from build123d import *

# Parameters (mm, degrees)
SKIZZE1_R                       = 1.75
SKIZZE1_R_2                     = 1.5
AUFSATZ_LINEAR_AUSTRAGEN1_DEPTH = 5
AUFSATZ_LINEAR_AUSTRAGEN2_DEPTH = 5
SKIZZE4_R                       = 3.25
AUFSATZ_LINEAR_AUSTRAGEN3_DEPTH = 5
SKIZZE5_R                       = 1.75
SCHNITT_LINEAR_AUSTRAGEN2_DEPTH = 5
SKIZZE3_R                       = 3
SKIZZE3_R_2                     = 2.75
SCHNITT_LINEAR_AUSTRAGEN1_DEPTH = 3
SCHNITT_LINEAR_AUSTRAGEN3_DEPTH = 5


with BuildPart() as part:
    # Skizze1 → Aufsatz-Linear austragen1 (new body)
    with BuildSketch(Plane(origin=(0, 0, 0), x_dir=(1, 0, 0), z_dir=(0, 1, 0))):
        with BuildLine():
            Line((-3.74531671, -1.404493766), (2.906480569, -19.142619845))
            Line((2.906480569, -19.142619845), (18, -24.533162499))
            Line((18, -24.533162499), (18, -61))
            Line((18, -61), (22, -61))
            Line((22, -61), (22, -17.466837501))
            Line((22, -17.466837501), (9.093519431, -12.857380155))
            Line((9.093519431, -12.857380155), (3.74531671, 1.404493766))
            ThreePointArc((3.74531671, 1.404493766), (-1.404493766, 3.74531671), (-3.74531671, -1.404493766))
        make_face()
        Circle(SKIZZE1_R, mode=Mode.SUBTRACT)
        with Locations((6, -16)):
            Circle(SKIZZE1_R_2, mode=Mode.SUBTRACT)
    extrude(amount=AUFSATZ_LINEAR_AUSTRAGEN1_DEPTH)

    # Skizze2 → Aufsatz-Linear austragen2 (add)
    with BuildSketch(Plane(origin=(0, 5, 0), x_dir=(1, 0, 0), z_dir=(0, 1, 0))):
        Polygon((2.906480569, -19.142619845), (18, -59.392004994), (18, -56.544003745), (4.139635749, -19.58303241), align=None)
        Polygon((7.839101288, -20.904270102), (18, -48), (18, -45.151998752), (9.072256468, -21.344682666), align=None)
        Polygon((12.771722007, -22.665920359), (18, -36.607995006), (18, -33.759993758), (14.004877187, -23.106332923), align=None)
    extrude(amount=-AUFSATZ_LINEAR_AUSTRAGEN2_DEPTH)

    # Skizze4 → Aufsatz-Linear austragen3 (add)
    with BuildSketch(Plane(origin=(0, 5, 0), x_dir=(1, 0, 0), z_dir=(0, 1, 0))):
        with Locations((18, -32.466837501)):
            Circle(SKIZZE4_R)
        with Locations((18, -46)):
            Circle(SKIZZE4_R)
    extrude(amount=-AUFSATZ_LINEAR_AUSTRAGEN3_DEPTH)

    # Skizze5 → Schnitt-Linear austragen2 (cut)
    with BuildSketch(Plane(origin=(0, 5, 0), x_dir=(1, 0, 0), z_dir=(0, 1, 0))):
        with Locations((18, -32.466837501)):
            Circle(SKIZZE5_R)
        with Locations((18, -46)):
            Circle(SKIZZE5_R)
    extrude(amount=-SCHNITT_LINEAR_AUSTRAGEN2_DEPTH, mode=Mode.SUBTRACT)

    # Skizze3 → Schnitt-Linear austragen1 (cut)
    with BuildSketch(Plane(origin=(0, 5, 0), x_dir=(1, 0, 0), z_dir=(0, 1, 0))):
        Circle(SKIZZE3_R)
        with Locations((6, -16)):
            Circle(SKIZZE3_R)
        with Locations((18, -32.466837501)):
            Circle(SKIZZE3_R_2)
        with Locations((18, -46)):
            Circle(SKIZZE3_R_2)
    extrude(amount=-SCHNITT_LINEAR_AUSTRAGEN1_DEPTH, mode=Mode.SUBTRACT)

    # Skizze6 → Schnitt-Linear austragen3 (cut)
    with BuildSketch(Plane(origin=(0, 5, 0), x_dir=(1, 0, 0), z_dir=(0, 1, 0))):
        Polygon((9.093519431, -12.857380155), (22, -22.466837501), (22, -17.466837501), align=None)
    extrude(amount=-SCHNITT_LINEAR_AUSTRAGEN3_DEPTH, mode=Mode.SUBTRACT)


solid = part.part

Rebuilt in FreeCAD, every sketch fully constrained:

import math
import FreeCAD as App
import Part
import Sketcher

V = App.Vector


def add_polygon(sketch, points):
    """Adds a closed chain of lines whose ends are joined by coincident constraints."""
    first, n = sketch.GeometryCount, len(points)
    for a, b in zip(points, points[1:] + points[:1]):
        sketch.addGeometry(Part.LineSegment(App.Vector(*a, 0), App.Vector(*b, 0)), False)
    for i in range(n):
        sketch.addConstraint(Sketcher.Constraint("Coincident", first + i, 2, first + (i + 1) % n, 1))

doc = App.newDocument("Part")
body = doc.addObject("PartDesign::Body", "Body")

# Sketch on XZ plane
sketch1 = body.newObject("Sketcher::SketchObject", "Sketch")
sketch1.AttachmentSupport = (doc.getObject("XZ_Plane"), [""])
sketch1.MapMode = "FlatFace"
sketch1.addGeometry([
    Part.LineSegment(V(-3.7, 1.4, 0), V(2.9, 19.1, 0)),  # 0
    Part.LineSegment(V(2.9, 19.1, 0), V(18, 24.5, 0)),  # 1
    Part.LineSegment(V(18, 24.5, 0), V(18, 61, 0)),  # 2
    Part.LineSegment(V(18, 61, 0), V(22, 61, 0)),  # 3
    Part.LineSegment(V(22, 61, 0), V(22, 17.5, 0)),  # 4
    Part.LineSegment(V(22, 17.5, 0), V(9.1, 12.9, 0)),  # 5
    Part.LineSegment(V(9.1, 12.9, 0), V(3.7, -1.4, 0)),  # 6
    Part.ArcOfCircle(Part.Circle(V(0, 0, 0), V(0, 0, 1), 4), math.radians(159), math.radians(339)),  # 7
    Part.Circle(V(6, 16, 0), V(0, 0, 1), 1.5),  # 8
    Part.Circle(V(0, 0, 0), V(0, 0, 1), 1.8),  # 9
], False)
sketch1.addConstraint([
    Sketcher.Constraint("Coincident", 0, 2, 1, 1),
    Sketcher.Constraint("Coincident", 1, 2, 2, 1),
    Sketcher.Constraint("Coincident", 2, 2, 3, 1),
    Sketcher.Constraint("Coincident", 3, 2, 4, 1),
    Sketcher.Constraint("Coincident", 4, 2, 5, 1),
    Sketcher.Constraint("Coincident", 5, 2, 6, 1),
    Sketcher.Constraint("Tangent", 6, 2, 7, 2),
    Sketcher.Constraint("Tangent", 7, 1, 0, 1),
    Sketcher.Constraint("Vertical", 2),
    Sketcher.Constraint("Horizontal", 3),
    Sketcher.Constraint("Vertical", 4),
    Sketcher.Constraint("Coincident", 7, 3, -1, 1),
    Sketcher.Constraint("Coincident", 9, 3, -1, 1),
    Sketcher.Constraint("Parallel", 1, 5),
    Sketcher.Constraint("Parallel", 0, 6),
    Sketcher.Constraint("Diameter", 8, 3.0),
    Sketcher.Constraint("Radius", 7, 4.0),
    Sketcher.Constraint("Diameter", 9, 3.5),
    Sketcher.Constraint("DistanceX", 3, 1, 3, 2, 4.0),
    Sketcher.Constraint("DistanceX", -1, 1, 8, 3, 6.0),
    Sketcher.Constraint("DistanceY", -1, 1, 8, 3, 16.0),
    Sketcher.Constraint("DistanceX", -1, 1, 1, 2, 18.0),
    Sketcher.Constraint("DistanceY", -1, 1, 2, 2, 61.0),
    Sketcher.Constraint("Distance", 5, 13.704902),
    Sketcher.Constraint("Distance", 6, 15.231688),
    Sketcher.Constraint("DistanceY", 2, 1, 2, 2, 36.466838),
    Sketcher.Constraint("DistanceY", 4, 2, 4, 1, 43.533162),
])
pad1 = body.newObject("PartDesign::Pad", "Pad")
pad1.Profile = sketch1
pad1.Length = 5
pad1.Reversed = True

# Sketch on XZ plane
sketch2 = body.newObject("Sketcher::SketchObject", "Sketch001")
sketch2.AttachmentSupport = (doc.getObject("XZ_Plane"), [""])
sketch2.MapMode = "FlatFace"
sketch2.AttachmentOffset = App.Placement(V(0, 0, -5), App.Rotation())
add_polygon(sketch2, [(2.9, 19.1), (18, 59.4), (18, 56.5), (4.1, 19.6)])  # lines 0-3
add_polygon(sketch2, [(7.8, 20.9), (18, 48), (18, 45.2), (9.1, 21.3)])  # lines 4-7
add_polygon(sketch2, [(12.8, 22.7), (18, 36.6), (18, 33.8), (14, 23.1)])  # lines 8-11
sketch2.addConstraint([
    Sketcher.Constraint("Vertical", 1),
    Sketcher.Constraint("Vertical", 5),
    Sketcher.Constraint("Vertical", 9),
    Sketcher.Constraint("Parallel", 0, 2),
    Sketcher.Constraint("Parallel", 2, 4),
    Sketcher.Constraint("Parallel", 4, 6),
    Sketcher.Constraint("Parallel", 3, 7),
    Sketcher.Constraint("Parallel", 6, 8),
    Sketcher.Constraint("Parallel", 8, 10),
    Sketcher.Constraint("Parallel", 7, 11),
    Sketcher.Constraint("Vertical", 1, 2, 4, 2),
    Sketcher.Constraint("Vertical", 5, 2, 8, 2),
    Sketcher.Constraint("Equal", 1, 5),
    Sketcher.Constraint("Equal", 5, 9),
    Sketcher.Constraint("DistanceX", -1, 1, 0, 2, 18.0),
    Sketcher.Constraint("DistanceY", -1, 1, 4, 2, 48.0),
    Sketcher.Constraint("DistanceY", 1, 2, 1, 1, 2.848001),
    Sketcher.Constraint("DistanceX", -1, 1, 7, 2, 7.839101),
    Sketcher.Constraint("DistanceY", 2, 2, 10, 2, 3.523301),
    Sketcher.Constraint("Distance", 3, 1.309441),
    Sketcher.Constraint("DistanceX", -1, 1, 3, 2, 2.906481),
    Sketcher.Constraint("DistanceY", -1, 1, 3, 2, 19.14262),
    Sketcher.Constraint("DistanceY", -1, 1, 7, 2, 20.90427),
    Sketcher.Constraint("DistanceY", 8, 2, 1, 2, 19.936009),
])
pad2 = body.newObject("PartDesign::Pad", "Pad001")
pad2.Profile = sketch2
pad2.Length = 5

# Sketch on XZ plane
sketch3 = body.newObject("Sketcher::SketchObject", "Sketch002")
sketch3.AttachmentSupport = (doc.getObject("XZ_Plane"), [""])
sketch3.MapMode = "FlatFace"
sketch3.AttachmentOffset = App.Placement(V(0, 0, -5), App.Rotation())
sketch3.addGeometry([
    Part.Circle(V(18, 32.5, 0), V(0, 0, 1), 3.2),
    Part.Circle(V(18, 46, 0), V(0, 0, 1), 3.2),
], False)
sketch3.addConstraint([
    Sketcher.Constraint("Equal", 0, 1),
    Sketcher.Constraint("Vertical", 0, 3, 1, 3),
    Sketcher.Constraint("Diameter", 0, 6.5),
    Sketcher.Constraint("DistanceX", -1, 1, 0, 3, 18.0),
    Sketcher.Constraint("DistanceY", -1, 1, 1, 3, 46.0),
    Sketcher.Constraint("DistanceY", -1, 1, 0, 3, 32.466838),
])
pad3 = body.newObject("PartDesign::Pad", "Pad002")
pad3.Profile = sketch3
pad3.Length = 5

# Sketch on XZ plane
sketch4 = body.newObject("Sketcher::SketchObject", "Sketch003")
sketch4.AttachmentSupport = (doc.getObject("XZ_Plane"), [""])
sketch4.MapMode = "FlatFace"
sketch4.AttachmentOffset = App.Placement(V(0, 0, -5), App.Rotation())
sketch4.addGeometry([
    Part.Circle(V(18, 32.5, 0), V(0, 0, 1), 1.8),
    Part.Circle(V(18, 46, 0), V(0, 0, 1), 1.8),
], False)
sketch4.addConstraint([
    Sketcher.Constraint("Equal", 0, 1),
    Sketcher.Constraint("Vertical", 0, 3, 1, 3),
    Sketcher.Constraint("Diameter", 0, 3.5),
    Sketcher.Constraint("DistanceX", -1, 1, 0, 3, 18.0),
    Sketcher.Constraint("DistanceY", -1, 1, 1, 3, 46.0),
    Sketcher.Constraint("DistanceY", -1, 1, 0, 3, 32.466838),
])
pocket1 = body.newObject("PartDesign::Pocket", "Pocket")
pocket1.Profile = sketch4
pocket1.Length = 5
pocket1.Reversed = True

# Sketch on XZ plane
sketch5 = body.newObject("Sketcher::SketchObject", "Sketch004")
sketch5.AttachmentSupport = (doc.getObject("XZ_Plane"), [""])
sketch5.MapMode = "FlatFace"
sketch5.AttachmentOffset = App.Placement(V(0, 0, -5), App.Rotation())
sketch5.addGeometry([
    Part.Circle(V(0, 0, 0), V(0, 0, 1), 3),
    Part.Circle(V(6, 16, 0), V(0, 0, 1), 3),
    Part.Circle(V(18, 32.5, 0), V(0, 0, 1), 2.8),
    Part.Circle(V(18, 46, 0), V(0, 0, 1), 2.8),
], False)
sketch5.addConstraint([
    Sketcher.Constraint("Coincident", 0, 3, -1, 1),
    Sketcher.Constraint("Equal", 0, 1),
    Sketcher.Constraint("Equal", 2, 3),
    Sketcher.Constraint("Vertical", 2, 3, 3, 3),
    Sketcher.Constraint("Diameter", 0, 6.0),
    Sketcher.Constraint("Diameter", 2, 5.5),
    Sketcher.Constraint("DistanceX", -1, 1, 1, 3, 6.0),
    Sketcher.Constraint("DistanceY", -1, 1, 1, 3, 16.0),
    Sketcher.Constraint("DistanceX", -1, 1, 2, 3, 18.0),
    Sketcher.Constraint("DistanceY", -1, 1, 3, 3, 46.0),
    Sketcher.Constraint("DistanceY", -1, 1, 2, 3, 32.466838),
])
pocket2 = body.newObject("PartDesign::Pocket", "Pocket001")
pocket2.Profile = sketch5
pocket2.Length = 3
pocket2.Reversed = True

# Sketch on XZ plane
sketch6 = body.newObject("Sketcher::SketchObject", "Sketch005")
sketch6.AttachmentSupport = (doc.getObject("XZ_Plane"), [""])
sketch6.MapMode = "FlatFace"
sketch6.AttachmentOffset = App.Placement(V(0, 0, -5), App.Rotation())
add_polygon(sketch6, [(9, 13), (22, 22), (22, 17)])  # lines 0-2
sketch6.addConstraint([
    Sketcher.Constraint("Vertical", 1),
    Sketcher.Constraint("DistanceY", 1, 2, 1, 1, 5.0),
    Sketcher.Constraint("DistanceX", -1, 1, 0, 2, 22.0),
    Sketcher.Constraint("Distance", 2, 13.704902),
    Sketcher.Constraint("DistanceX", -1, 1, 2, 2, 9.093519),
    Sketcher.Constraint("DistanceY", -1, 1, 2, 2, 12.85738),
])
pocket3 = body.newObject("PartDesign::Pocket", "Pocket002")
pocket3.Profile = sketch6
pocket3.Length = 5
pocket3.Reversed = True

doc.recompute()
